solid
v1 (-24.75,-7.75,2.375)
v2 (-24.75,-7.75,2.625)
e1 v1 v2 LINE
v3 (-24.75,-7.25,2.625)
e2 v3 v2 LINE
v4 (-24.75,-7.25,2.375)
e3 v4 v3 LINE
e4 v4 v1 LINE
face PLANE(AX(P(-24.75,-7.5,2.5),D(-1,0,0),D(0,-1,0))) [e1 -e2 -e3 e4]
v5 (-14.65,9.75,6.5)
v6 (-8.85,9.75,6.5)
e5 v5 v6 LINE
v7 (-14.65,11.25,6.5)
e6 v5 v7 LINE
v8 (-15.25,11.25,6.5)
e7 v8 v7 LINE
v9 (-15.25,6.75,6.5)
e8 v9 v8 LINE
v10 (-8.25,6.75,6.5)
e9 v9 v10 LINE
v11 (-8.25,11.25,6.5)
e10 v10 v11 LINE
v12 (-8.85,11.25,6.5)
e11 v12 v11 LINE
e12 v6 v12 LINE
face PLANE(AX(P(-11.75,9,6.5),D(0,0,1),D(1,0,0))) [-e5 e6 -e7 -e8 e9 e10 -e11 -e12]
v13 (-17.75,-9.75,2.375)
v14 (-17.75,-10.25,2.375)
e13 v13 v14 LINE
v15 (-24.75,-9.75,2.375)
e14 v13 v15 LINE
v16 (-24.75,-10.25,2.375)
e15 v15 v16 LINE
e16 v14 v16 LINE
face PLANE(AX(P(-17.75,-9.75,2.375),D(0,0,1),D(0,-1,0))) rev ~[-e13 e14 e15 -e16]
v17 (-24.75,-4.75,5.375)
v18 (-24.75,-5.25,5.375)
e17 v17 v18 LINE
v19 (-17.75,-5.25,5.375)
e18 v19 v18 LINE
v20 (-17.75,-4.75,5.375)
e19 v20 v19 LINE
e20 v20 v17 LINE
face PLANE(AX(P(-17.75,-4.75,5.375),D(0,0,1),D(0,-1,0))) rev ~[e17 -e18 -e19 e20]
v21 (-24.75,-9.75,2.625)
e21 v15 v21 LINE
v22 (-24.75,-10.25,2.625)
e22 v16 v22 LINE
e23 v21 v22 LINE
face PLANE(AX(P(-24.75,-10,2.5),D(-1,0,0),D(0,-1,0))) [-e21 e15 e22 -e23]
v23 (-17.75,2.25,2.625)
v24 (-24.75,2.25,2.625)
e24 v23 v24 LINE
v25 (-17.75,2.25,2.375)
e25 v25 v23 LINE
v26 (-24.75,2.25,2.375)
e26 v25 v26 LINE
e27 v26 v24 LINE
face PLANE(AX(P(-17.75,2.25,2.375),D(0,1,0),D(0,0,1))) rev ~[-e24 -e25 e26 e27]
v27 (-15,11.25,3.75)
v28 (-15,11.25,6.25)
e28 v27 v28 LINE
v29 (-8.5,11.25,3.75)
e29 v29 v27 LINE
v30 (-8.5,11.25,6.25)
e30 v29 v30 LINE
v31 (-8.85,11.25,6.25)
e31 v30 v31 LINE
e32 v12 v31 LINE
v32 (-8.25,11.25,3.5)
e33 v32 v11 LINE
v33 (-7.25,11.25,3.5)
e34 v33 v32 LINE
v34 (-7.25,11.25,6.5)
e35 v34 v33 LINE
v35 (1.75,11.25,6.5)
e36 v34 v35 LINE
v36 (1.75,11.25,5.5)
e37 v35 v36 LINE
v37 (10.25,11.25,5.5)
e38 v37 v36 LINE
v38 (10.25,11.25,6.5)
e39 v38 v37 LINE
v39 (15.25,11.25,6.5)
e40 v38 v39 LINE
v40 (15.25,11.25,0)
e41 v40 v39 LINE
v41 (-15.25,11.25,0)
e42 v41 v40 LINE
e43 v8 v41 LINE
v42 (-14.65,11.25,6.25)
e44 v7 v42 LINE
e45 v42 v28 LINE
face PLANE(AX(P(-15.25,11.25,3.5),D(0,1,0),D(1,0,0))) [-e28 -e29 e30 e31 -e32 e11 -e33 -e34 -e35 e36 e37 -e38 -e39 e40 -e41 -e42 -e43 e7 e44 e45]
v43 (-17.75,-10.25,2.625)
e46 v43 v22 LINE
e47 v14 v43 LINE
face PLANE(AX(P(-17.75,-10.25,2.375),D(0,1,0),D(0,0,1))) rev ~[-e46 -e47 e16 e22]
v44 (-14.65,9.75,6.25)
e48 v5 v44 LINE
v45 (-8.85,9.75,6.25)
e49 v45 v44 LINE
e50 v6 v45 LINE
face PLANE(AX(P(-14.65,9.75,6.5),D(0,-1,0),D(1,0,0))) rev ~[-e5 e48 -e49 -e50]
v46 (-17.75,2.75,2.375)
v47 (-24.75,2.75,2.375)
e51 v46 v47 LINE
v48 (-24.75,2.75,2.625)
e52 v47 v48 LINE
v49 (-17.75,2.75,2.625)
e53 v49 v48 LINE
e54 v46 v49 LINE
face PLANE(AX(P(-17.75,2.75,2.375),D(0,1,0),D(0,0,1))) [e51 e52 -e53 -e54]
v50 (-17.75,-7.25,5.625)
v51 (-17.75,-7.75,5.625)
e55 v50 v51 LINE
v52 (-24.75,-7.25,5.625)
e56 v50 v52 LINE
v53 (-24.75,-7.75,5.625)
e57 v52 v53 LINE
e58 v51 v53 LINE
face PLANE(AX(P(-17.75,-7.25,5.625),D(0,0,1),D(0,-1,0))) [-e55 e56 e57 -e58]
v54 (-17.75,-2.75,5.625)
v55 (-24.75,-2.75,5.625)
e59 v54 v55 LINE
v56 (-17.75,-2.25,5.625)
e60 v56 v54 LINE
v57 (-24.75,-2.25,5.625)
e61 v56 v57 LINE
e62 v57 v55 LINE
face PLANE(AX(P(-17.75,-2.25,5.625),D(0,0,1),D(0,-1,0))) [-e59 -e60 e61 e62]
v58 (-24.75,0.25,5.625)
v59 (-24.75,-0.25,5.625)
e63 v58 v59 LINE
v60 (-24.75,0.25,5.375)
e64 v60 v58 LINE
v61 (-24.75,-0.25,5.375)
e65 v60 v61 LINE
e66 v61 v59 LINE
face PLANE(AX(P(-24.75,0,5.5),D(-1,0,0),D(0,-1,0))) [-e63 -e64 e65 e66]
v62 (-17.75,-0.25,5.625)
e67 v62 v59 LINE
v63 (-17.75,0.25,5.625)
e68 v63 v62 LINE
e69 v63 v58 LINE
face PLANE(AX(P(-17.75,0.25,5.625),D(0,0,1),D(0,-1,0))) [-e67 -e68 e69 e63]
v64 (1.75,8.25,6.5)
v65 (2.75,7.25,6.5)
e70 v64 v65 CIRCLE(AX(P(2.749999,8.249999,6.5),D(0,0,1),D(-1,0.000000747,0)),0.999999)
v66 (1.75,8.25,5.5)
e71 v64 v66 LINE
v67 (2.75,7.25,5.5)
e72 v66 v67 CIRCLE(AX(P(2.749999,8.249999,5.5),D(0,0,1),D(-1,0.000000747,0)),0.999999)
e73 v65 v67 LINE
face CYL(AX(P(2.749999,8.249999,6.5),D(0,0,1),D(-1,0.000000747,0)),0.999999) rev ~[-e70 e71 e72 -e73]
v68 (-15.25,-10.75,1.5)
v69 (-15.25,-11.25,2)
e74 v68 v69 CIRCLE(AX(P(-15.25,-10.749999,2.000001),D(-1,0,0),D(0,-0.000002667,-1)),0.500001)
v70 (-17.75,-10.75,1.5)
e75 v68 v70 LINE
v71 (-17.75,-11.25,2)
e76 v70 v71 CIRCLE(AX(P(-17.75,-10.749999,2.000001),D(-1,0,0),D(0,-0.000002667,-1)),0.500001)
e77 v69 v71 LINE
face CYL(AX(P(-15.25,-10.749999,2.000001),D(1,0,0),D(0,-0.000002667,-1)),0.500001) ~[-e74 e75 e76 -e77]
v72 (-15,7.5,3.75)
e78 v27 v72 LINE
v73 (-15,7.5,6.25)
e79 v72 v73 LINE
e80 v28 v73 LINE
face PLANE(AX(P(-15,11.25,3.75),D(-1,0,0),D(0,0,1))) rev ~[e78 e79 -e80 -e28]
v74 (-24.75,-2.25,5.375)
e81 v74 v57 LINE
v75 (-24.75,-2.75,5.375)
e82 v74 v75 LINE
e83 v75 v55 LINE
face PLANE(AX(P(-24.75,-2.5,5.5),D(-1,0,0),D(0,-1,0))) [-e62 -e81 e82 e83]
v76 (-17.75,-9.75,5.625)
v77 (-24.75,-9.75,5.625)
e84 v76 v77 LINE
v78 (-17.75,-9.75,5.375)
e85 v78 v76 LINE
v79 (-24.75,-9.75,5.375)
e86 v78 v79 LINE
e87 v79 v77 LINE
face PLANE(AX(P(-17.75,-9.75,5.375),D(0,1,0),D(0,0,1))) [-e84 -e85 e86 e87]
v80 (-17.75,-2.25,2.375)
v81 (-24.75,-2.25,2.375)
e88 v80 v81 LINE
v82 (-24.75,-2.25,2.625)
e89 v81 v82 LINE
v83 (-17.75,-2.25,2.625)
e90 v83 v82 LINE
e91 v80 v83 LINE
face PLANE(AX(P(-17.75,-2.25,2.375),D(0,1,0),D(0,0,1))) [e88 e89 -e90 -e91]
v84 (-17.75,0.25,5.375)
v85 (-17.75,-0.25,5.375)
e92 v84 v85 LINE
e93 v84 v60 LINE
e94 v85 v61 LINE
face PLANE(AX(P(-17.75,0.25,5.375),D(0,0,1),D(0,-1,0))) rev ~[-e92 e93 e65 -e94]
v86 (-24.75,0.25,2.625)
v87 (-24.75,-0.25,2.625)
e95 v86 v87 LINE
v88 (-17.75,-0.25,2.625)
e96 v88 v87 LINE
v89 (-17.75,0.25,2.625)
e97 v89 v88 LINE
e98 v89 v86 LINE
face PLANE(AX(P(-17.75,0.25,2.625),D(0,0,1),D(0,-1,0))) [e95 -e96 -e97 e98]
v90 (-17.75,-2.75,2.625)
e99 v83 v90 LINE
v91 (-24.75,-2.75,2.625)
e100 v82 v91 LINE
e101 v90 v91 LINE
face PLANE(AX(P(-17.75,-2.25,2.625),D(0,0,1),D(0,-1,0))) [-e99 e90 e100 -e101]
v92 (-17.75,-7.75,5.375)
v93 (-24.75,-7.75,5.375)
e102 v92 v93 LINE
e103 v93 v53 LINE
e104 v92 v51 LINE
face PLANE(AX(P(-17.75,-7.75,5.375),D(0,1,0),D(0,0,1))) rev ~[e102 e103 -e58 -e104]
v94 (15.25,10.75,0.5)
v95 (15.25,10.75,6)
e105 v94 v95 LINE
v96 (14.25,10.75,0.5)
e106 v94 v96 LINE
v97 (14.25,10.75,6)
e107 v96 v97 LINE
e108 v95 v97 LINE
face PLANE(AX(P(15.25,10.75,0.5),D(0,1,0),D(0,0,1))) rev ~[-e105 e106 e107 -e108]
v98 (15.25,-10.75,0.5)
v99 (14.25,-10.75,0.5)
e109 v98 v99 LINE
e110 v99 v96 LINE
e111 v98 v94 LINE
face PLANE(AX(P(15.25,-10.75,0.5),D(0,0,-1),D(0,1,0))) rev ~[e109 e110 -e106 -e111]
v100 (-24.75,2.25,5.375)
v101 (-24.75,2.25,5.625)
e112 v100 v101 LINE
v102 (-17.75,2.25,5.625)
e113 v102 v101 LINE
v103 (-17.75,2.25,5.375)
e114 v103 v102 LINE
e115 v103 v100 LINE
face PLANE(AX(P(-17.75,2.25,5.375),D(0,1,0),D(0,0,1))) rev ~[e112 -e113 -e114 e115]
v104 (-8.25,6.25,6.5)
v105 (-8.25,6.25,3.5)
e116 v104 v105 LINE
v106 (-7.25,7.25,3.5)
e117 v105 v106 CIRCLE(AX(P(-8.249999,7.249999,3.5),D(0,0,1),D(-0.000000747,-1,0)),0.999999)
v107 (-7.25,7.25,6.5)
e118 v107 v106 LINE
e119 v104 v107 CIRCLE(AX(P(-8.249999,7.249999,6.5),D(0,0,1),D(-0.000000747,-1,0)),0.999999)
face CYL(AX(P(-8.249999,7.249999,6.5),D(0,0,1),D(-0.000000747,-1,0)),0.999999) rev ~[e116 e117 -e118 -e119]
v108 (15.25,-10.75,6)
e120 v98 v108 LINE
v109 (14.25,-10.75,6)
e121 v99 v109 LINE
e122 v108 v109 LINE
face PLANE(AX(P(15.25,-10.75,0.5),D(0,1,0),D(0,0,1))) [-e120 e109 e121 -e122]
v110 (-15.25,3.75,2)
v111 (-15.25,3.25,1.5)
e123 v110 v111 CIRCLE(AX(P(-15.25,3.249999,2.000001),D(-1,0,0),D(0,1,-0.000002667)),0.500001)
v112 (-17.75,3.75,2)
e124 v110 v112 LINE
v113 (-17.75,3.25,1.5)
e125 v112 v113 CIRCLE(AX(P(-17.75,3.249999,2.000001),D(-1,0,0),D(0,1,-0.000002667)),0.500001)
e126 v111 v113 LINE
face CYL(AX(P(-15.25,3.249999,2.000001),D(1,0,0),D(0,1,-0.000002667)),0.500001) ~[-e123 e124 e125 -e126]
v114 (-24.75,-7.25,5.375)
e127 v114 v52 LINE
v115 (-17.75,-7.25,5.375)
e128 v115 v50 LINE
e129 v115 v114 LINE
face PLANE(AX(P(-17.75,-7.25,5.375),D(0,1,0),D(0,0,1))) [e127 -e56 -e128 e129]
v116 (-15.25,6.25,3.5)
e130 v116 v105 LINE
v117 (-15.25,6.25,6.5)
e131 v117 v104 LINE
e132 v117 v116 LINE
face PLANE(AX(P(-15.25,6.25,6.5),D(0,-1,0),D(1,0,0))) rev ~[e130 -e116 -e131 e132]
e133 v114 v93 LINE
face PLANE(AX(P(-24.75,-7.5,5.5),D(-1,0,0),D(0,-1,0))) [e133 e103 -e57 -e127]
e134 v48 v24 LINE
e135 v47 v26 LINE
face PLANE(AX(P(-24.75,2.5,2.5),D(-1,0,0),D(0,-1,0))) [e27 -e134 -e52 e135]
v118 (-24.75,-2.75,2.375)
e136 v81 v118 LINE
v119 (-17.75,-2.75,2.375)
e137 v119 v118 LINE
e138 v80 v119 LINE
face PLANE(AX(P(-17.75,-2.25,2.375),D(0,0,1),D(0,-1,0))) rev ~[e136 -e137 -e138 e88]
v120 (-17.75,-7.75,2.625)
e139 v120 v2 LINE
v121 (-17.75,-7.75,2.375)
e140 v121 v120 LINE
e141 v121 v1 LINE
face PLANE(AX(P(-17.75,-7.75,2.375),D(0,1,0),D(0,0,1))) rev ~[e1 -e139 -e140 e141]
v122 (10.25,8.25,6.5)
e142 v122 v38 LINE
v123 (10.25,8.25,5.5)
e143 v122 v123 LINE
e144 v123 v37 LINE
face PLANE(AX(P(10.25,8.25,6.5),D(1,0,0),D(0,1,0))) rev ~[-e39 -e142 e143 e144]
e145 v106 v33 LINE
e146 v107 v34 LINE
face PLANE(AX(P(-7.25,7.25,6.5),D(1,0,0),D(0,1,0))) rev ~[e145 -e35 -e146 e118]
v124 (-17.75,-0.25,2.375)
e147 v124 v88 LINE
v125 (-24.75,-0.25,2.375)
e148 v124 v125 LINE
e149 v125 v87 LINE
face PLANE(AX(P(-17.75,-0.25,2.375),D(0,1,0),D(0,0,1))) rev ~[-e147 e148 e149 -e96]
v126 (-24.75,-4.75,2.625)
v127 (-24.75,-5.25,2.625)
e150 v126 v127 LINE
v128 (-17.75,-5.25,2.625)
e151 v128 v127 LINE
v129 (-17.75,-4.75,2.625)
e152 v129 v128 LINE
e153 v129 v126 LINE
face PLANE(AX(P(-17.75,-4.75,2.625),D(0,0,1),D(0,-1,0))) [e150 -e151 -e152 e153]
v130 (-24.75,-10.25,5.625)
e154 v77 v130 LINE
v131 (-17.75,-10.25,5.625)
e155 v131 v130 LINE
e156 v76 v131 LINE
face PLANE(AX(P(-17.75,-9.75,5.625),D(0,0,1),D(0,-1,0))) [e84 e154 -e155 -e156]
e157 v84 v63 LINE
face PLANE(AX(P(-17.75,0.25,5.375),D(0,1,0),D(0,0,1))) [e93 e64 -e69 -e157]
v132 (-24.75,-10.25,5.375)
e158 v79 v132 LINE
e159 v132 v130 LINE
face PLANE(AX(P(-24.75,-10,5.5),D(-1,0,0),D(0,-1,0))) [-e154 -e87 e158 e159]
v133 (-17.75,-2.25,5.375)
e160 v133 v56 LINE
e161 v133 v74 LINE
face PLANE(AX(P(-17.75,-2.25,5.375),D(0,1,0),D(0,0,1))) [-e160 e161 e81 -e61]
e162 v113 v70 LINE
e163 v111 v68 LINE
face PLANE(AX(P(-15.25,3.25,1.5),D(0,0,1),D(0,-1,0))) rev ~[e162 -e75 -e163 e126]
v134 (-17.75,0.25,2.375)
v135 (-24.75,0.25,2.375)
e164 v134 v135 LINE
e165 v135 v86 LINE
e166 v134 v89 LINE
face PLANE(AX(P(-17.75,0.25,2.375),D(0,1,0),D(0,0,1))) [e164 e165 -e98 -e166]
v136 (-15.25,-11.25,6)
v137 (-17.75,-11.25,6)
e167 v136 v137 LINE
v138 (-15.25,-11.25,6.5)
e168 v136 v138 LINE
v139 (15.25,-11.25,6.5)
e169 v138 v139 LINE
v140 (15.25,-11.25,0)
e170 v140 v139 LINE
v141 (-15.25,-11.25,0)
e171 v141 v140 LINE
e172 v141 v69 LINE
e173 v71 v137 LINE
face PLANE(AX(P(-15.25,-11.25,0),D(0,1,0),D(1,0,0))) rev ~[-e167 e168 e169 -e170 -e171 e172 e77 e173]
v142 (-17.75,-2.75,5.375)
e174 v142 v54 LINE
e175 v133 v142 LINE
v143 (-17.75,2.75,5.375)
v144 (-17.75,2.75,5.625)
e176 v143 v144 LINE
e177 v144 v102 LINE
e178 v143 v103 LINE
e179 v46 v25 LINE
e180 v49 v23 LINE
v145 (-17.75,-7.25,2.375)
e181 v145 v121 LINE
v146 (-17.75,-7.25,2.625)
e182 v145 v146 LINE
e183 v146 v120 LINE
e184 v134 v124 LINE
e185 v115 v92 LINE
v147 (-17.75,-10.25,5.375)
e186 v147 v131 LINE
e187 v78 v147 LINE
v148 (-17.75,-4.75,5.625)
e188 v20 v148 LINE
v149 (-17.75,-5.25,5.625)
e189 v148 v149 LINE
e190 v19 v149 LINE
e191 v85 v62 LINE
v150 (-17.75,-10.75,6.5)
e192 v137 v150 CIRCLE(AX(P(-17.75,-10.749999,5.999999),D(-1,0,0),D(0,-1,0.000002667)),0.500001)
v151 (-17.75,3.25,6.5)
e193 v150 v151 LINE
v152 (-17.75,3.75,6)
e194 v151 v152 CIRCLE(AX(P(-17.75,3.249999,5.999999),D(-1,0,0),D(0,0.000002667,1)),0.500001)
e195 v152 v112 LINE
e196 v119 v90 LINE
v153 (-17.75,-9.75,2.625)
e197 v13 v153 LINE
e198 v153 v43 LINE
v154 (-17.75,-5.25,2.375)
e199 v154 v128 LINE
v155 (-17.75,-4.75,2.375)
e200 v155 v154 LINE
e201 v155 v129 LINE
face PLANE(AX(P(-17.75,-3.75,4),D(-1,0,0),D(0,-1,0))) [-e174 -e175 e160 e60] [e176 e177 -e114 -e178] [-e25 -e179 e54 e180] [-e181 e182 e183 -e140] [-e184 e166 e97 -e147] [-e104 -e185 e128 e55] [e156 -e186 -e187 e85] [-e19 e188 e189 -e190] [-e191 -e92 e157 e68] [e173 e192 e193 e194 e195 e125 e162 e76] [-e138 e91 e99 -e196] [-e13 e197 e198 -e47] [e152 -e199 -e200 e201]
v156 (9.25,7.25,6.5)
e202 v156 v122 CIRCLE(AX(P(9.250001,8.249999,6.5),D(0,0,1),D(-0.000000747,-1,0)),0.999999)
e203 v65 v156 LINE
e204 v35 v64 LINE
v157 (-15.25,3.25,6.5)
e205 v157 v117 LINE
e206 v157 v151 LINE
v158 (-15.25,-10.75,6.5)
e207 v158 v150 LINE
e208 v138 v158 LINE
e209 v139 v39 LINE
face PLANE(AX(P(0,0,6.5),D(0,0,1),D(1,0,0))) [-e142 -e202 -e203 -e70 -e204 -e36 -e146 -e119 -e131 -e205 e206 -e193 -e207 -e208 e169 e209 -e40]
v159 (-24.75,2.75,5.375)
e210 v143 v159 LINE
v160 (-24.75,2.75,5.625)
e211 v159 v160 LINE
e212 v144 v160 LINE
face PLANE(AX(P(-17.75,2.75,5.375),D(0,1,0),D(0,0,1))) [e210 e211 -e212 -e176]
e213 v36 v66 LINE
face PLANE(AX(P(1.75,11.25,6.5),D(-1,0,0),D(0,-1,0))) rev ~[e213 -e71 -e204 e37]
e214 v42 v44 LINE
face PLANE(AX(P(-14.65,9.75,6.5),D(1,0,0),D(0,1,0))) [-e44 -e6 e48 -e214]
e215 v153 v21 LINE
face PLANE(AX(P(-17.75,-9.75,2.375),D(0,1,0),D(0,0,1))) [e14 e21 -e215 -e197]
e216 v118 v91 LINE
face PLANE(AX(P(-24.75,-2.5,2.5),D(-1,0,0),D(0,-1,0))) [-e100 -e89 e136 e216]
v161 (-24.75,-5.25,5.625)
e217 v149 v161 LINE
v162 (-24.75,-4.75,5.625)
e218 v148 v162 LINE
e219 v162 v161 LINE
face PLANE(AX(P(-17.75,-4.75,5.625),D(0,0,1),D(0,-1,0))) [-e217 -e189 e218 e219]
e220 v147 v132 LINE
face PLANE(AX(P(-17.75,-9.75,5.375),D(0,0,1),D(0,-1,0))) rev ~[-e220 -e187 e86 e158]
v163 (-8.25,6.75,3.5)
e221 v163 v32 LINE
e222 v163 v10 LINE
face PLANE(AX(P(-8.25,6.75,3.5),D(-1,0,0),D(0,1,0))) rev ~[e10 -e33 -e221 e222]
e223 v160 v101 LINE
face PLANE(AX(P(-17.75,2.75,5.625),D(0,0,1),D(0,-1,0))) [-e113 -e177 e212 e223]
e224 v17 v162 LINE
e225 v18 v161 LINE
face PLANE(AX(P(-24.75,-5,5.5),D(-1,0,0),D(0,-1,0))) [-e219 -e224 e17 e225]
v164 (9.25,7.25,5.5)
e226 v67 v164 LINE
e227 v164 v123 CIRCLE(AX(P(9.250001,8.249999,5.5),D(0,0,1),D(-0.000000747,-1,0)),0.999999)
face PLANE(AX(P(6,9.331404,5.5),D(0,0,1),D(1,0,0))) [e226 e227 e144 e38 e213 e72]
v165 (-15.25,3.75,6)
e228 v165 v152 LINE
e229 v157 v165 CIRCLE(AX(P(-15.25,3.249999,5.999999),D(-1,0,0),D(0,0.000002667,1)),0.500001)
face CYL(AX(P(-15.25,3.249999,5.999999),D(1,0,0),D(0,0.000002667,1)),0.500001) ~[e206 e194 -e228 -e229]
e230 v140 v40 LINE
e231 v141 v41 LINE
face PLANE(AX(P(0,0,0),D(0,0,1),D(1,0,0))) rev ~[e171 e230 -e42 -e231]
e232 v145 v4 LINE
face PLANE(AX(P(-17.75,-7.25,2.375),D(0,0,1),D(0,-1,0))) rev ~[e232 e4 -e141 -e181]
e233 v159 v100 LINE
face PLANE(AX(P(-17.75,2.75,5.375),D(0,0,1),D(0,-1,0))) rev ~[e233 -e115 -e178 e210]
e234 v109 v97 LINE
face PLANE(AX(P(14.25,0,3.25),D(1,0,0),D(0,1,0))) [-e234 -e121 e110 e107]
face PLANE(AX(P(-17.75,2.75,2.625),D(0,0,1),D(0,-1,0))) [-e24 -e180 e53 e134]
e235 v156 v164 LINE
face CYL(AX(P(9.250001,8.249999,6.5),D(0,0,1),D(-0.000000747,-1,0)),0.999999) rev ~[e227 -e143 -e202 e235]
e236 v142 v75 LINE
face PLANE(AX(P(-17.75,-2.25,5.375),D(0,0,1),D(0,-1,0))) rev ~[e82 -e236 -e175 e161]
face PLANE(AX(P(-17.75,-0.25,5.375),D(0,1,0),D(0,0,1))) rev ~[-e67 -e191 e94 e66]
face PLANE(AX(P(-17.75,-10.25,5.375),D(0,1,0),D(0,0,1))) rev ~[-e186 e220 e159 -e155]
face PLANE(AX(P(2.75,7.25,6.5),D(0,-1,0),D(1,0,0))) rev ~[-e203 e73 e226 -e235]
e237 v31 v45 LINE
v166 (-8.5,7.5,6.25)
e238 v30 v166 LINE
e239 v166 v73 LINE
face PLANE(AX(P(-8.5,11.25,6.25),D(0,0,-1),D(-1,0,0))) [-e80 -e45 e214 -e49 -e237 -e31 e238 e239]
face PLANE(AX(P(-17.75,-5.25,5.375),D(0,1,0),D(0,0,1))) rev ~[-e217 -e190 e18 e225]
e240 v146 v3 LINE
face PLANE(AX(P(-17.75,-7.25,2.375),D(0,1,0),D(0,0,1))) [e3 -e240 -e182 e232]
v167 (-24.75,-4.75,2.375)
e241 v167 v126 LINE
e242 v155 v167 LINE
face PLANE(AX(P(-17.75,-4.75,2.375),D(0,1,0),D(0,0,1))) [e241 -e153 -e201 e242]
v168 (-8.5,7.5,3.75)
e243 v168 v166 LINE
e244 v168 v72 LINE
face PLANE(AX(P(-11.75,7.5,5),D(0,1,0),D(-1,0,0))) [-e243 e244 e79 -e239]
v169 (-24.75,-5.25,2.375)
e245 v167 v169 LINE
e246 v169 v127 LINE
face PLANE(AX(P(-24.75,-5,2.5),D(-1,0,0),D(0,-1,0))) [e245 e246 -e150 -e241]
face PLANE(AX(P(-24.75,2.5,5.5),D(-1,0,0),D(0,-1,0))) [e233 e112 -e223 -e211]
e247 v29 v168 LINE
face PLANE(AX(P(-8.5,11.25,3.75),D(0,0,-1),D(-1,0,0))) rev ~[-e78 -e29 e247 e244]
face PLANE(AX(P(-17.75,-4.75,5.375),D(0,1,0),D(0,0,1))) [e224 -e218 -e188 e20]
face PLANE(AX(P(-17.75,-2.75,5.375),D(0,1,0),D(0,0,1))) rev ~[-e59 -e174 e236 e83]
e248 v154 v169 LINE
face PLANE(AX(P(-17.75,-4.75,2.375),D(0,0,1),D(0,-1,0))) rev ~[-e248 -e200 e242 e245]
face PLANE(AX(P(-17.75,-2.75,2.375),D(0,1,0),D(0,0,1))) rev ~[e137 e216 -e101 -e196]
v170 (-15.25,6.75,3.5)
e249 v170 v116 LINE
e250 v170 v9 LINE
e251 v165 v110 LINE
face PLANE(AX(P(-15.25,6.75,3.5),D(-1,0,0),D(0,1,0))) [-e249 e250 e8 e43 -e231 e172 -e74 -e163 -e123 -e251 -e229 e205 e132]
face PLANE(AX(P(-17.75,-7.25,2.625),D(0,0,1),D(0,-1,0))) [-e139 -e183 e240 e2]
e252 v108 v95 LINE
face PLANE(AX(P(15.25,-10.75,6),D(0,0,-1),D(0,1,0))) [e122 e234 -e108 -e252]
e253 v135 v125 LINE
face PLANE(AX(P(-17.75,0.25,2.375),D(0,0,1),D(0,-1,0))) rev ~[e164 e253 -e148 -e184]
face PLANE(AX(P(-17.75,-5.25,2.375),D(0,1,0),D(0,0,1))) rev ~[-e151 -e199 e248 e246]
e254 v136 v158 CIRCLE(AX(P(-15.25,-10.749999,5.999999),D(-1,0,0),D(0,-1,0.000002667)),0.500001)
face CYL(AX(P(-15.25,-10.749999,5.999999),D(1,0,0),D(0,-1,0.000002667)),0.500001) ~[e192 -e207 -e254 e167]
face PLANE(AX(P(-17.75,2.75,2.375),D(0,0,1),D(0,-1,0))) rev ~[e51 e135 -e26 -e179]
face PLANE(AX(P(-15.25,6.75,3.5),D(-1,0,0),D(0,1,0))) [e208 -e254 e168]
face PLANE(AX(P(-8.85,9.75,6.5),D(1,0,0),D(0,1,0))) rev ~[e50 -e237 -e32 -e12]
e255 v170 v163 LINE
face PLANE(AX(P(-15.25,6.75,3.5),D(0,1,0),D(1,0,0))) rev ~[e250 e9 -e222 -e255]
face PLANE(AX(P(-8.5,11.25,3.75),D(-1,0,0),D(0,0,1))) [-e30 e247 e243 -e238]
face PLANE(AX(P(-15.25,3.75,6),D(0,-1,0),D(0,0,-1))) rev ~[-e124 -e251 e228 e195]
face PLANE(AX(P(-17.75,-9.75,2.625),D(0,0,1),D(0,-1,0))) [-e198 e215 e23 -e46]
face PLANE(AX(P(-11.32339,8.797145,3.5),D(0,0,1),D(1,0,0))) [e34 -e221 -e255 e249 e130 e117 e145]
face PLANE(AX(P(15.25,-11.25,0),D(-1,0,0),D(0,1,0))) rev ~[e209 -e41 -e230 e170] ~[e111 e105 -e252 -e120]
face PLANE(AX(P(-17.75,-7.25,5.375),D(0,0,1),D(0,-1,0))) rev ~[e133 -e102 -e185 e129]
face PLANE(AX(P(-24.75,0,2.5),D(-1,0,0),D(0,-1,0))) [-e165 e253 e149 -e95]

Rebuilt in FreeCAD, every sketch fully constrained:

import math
import FreeCAD as App
import Part
import Sketcher
from FreeCAD import Vector

doc = App.newDocument("Part")
params = doc.addObject("Spreadsheet::Sheet", "Params")
for row, (alias, value) in enumerate([
    ("sketch1_width", "30.5 mm"),
    ("sketch1_height", "22.5 mm"),
    ("pad1_length", "6.5 mm"),
    ("sketch2_radius", "0.999999 mm"),
    ("sketch2_width", "8 mm"),
    ("sketch2_height", "5 mm"),
    ("pocket1_length", "3 mm"),
    ("sketch3_width", "7 mm"),
    ("sketch3_height", "4.5 mm"),
    ("pad2_length", "3 mm"),
    ("sketch4_width", "6.5 mm"),
    ("sketch4_height", "2.5 mm"),
    ("pocket2_length", "3.75 mm"),
    ("sketch5_width", "5.8 mm"),
    ("sketch5_height", "1.5 mm"),
    ("pocket3_length", "0.5 mm"),
    ("sketch6_radius", "0.999999 mm"),
    ("sketch6_height", "3 mm"),
    ("sketch6_width", "8.5 mm"),
    ("pocket4_length", "1 mm"),
    ("sketch7_radius", "0.500001 mm"),
    ("sketch7_width", "14 mm"),
    ("sketch7_height", "4 mm"),
    ("pad3_length", "2.5 mm"),
    ("sketch8_width", "0.5 mm"),
    ("sketch8_height", "0.25 mm"),
    ("pad4_length", "7 mm"),
    ("sketch9_width", "21.5 mm"),
    ("sketch9_height", "5.5 mm"),
    ("pocket5_length", "1 mm"),
], start=1):
    params.set(f"A{row}", alias)
    params.set(f"B{row}", "=" + value)
    params.setAlias(f"B{row}", alias)

body = doc.addObject("PartDesign::Body", "Body")

sketch1 = doc.addObject("Sketcher::SketchObject", "Sketch")
body.addObject(sketch1)
sketch1.AttachmentSupport = (doc.XY_Plane, [""])
sketch1.MapMode = "FlatFace"
sketch1.addGeometry([
    Part.LineSegment(Vector(-15.25, 11.25, 0), Vector(-15.25, -11.25, 0)),
    Part.LineSegment(Vector(-15.25, -11.25, 0), Vector(15.25, -11.25, 0)),
    Part.LineSegment(Vector(15.25, -11.25, 0), Vector(15.25, 11.25, 0)),
    Part.LineSegment(Vector(15.25, 11.25, 0), Vector(-15.25, 11.25, 0)),
], False)
sketch1.addConstraint([
    Sketcher.Constraint("Coincident", 0, 2, 1, 1),
    Sketcher.Constraint("Coincident", 1, 2, 2, 1),
    Sketcher.Constraint("Coincident", 2, 2, 3, 1),
    Sketcher.Constraint("Coincident", 3, 2, 0, 1),
    Sketcher.Constraint("Vertical", 0),
    Sketcher.Constraint("Horizontal", 1),
    Sketcher.Constraint("Vertical", 2),
    Sketcher.Constraint("Horizontal", 3),
    Sketcher.Constraint("Symmetric", 0, 2, 2, 2, -1, 1),
    Sketcher.Constraint("DistanceX", 1, 1, 1, 2, 30.5),
    Sketcher.Constraint("DistanceY", 0, 2, 0, 1, 22.5),
])
sketch1.setExpression("Constraints[9]", "Params.sketch1_width")
sketch1.setExpression("Constraints[10]", "Params.sketch1_height")
pad1 = doc.addObject("PartDesign::Pad", "Pad")
body.addObject(pad1)
pad1.Profile = sketch1
pad1.setExpression("Length", "Params.pad1_length")

sketch2 = doc.addObject("Sketcher::SketchObject", "Sketch001")
body.addObject(sketch2)
sketch2.AttachmentSupport = (doc.XY_Plane, [""])
sketch2.MapMode = "FlatFace"
sketch2.AttachmentOffset = App.Placement(Vector(0, 0, 6.5), App.Rotation())
sketch2.addGeometry([
    Part.LineSegment(Vector(-7.25, 11.25, 0), Vector(-15.25, 11.25, 0)),
    Part.LineSegment(Vector(-15.25, 11.25, 0), Vector(-15.25, 6.25, 0)),
    Part.LineSegment(Vector(-15.25, 6.25, 0), Vector(-8.25, 6.25, 0)),
    Part.ArcOfCircle(Part.Circle(Vector(-8.249999, 7.249999, 0), Vector(0, 0, 1), 0.999999), math.radians(-90.000043), math.radians(0.000043)),
    Part.LineSegment(Vector(-7.25, 7.25, 0), Vector(-7.25, 11.25, 0)),
], False)
sketch2.addConstraint([
    Sketcher.Constraint("Coincident", 0, 2, 1, 1),
    Sketcher.Constraint("Coincident", 1, 2, 2, 1),
    Sketcher.Constraint("Tangent", 2, 2, 3, 1),
    Sketcher.Constraint("Tangent", 3, 2, 4, 1),
    Sketcher.Constraint("Coincident", 4, 2, 0, 1),
    Sketcher.Constraint("Horizontal", 0),
    Sketcher.Constraint("Vertical", 1),
    Sketcher.Constraint("Horizontal", 2),
    Sketcher.Constraint("Vertical", 4),
    Sketcher.Constraint("Radius", 3, 0.999999),
    Sketcher.Constraint("DistanceX", 0, 2, 0, 1, 8.0),
    Sketcher.Constraint("DistanceY", 1, 2, 1, 1, 5.0),
    Sketcher.Constraint("DistanceX", 3, 3, -1, 1, 8.249999),
    Sketcher.Constraint("DistanceY", -1, 1, 3, 3, 7.249999),
])
sketch2.setExpression("Constraints[9]", "Params.sketch2_radius")
sketch2.setExpression("Constraints[10]", "Params.sketch2_width")
sketch2.setExpression("Constraints[11]", "Params.sketch2_height")
pocket1 = doc.addObject("PartDesign::Pocket", "Pocket")
body.addObject(pocket1)
pocket1.Profile = sketch2
pocket1.setExpression("Length", "Params.pocket1_length")

sketch3 = doc.addObject("Sketcher::SketchObject", "Sketch002")
body.addObject(sketch3)
sketch3.AttachmentSupport = (doc.XY_Plane, [""])
sketch3.MapMode = "FlatFace"
sketch3.AttachmentOffset = App.Placement(Vector(0, 0, 3.5), App.Rotation())
sketch3.addGeometry([
    Part.LineSegment(Vector(-15.25, 11.25, 0), Vector(-15.25, 6.75, 0)),
    Part.LineSegment(Vector(-15.25, 6.75, 0), Vector(-8.25, 6.75, 0)),
    Part.LineSegment(Vector(-8.25, 6.75, 0), Vector(-8.25, 11.25, 0)),
    Part.LineSegment(Vector(-8.25, 11.25, 0), Vector(-15.25, 11.25, 0)),
], False)
sketch3.addConstraint([
    Sketcher.Constraint("Coincident", 0, 2, 1, 1),
    Sketcher.Constraint("Coincident", 1, 2, 2, 1),
    Sketcher.Constraint("Coincident", 2, 2, 3, 1),
    Sketcher.Constraint("Coincident", 3, 2, 0, 1),
    Sketcher.Constraint("Vertical", 0),
    Sketcher.Constraint("Horizontal", 1),
    Sketcher.Constraint("Vertical", 2),
    Sketcher.Constraint("Horizontal", 3),
    Sketcher.Constraint("DistanceX", 1, 1, 1, 2, 7.0),
    Sketcher.Constraint("DistanceY", 0, 2, 0, 1, 4.5),
    Sketcher.Constraint("DistanceX", 0, 2, -1, 1, 15.25),
    Sketcher.Constraint("DistanceY", -1, 1, 0, 2, 6.75),
])
sketch3.setExpression("Constraints[8]", "Params.sketch3_width")
sketch3.setExpression("Constraints[9]", "Params.sketch3_height")
pad2 = doc.addObject("PartDesign::Pad", "Pad001")
body.addObject(pad2)
pad2.Profile = sketch3
pad2.setExpression("Length", "Params.pad2_length")

sketch4 = doc.addObject("Sketcher::SketchObject", "Sketch003")
body.addObject(sketch4)
sketch4.AttachmentSupport = (doc.XZ_Plane, [""])
sketch4.MapMode = "FlatFace"
sketch4.AttachmentOffset = App.Placement(Vector(0, 0, -11.25), App.Rotation())
sketch4.addGeometry([
    Part.LineSegment(Vector(-8.5, 6.25, 0), Vector(-8.5, 3.75, 0)),
    Part.LineSegment(Vector(-8.5, 3.75, 0), Vector(-15, 3.75, 0)),
    Part.LineSegment(Vector(-15, 3.75, 0), Vector(-15, 6.25, 0)),
    Part.LineSegment(Vector(-15, 6.25, 0), Vector(-8.5, 6.25, 0)),
], False)
sketch4.addConstraint([
    Sketcher.Constraint("Coincident", 0, 2, 1, 1),
    Sketcher.Constraint("Coincident", 1, 2, 2, 1),
    Sketcher.Constraint("Coincident", 2, 2, 3, 1),
    Sketcher.Constraint("Coincident", 3, 2, 0, 1),
    Sketcher.Constraint("Vertical", 0),
    Sketcher.Constraint("Horizontal", 1),
    Sketcher.Constraint("Vertical", 2),
    Sketcher.Constraint("Horizontal", 3),
    Sketcher.Constraint("DistanceX", 1, 2, 1, 1, 6.5),
    Sketcher.Constraint("DistanceY", 0, 2, 0, 1, 2.5),
    Sketcher.Constraint("DistanceX", 1, 2, -1, 1, 15.0),
    Sketcher.Constraint("DistanceY", -1, 1, 0, 2, 3.75),
])
sketch4.setExpression("Constraints[8]", "Params.sketch4_width")
sketch4.setExpression("Constraints[9]", "Params.sketch4_height")
pocket2 = doc.addObject("PartDesign::Pocket", "Pocket001")
body.addObject(pocket2)
pocket2.Profile = sketch4
pocket2.setExpression("Length", "Params.pocket2_length")
pocket2.Reversed = True

sketch5 = doc.addObject("Sketcher::SketchObject", "Sketch004")
body.addObject(sketch5)
sketch5.AttachmentSupport = (doc.XY_Plane, [""])
sketch5.MapMode = "FlatFace"
sketch5.AttachmentOffset = App.Placement(Vector(0, 0, 6.5), App.Rotation())
sketch5.addGeometry([
    Part.LineSegment(Vector(-14.65, 11.25, 0), Vector(-14.65, 9.75, 0)),
    Part.LineSegment(Vector(-14.65, 9.75, 0), Vector(-8.85, 9.75, 0)),
    Part.LineSegment(Vector(-8.85, 9.75, 0), Vector(-8.85, 11.25, 0)),
    Part.LineSegment(Vector(-8.85, 11.25, 0), Vector(-14.65, 11.25, 0)),
], False)
sketch5.addConstraint([
    Sketcher.Constraint("Coincident", 0, 2, 1, 1),
    Sketcher.Constraint("Coincident", 1, 2, 2, 1),
    Sketcher.Constraint("Coincident", 2, 2, 3, 1),
    Sketcher.Constraint("Coincident", 3, 2, 0, 1),
    Sketcher.Constraint("Vertical", 0),
    Sketcher.Constraint("Horizontal", 1),
    Sketcher.Constraint("Vertical", 2),
    Sketcher.Constraint("Horizontal", 3),
    Sketcher.Constraint("DistanceX", 1, 1, 1, 2, 5.8),
    Sketcher.Constraint("DistanceY", 0, 2, 0, 1, 1.5),
    Sketcher.Constraint("DistanceX", 0, 2, -1, 1, 14.65),
    Sketcher.Constraint("DistanceY", -1, 1, 0, 2, 9.75),
])
sketch5.setExpression("Constraints[8]", "Params.sketch5_width")
sketch5.setExpression("Constraints[9]", "Params.sketch5_height")
pocket3 = doc.addObject("PartDesign::Pocket", "Pocket002")
body.addObject(pocket3)
pocket3.Profile = sketch5
pocket3.setExpression("Length", "Params.pocket3_length")

sketch6 = doc.addObject("Sketcher::SketchObject", "Sketch005")
body.addObject(sketch6)
sketch6.AttachmentSupport = (doc.XY_Plane, [""])
sketch6.MapMode = "FlatFace"
sketch6.AttachmentOffset = App.Placement(Vector(0, 0, 6.5), App.Rotation())
sketch6.addGeometry([
    Part.LineSegment(Vector(10.25, 11.25, 0), Vector(1.75, 11.25, 0)),
    Part.LineSegment(Vector(1.75, 11.25, 0), Vector(1.75, 8.25, 0)),
    Part.ArcOfCircle(Part.Circle(Vector(2.749999, 8.249999, 0), Vector(0, 0, 1), 0.999999), math.radians(179.999957), math.radians(270.000043)),
    Part.LineSegment(Vector(2.75, 7.25, 0), Vector(9.25, 7.25, 0)),
    Part.ArcOfCircle(Part.Circle(Vector(9.250001, 8.249999, 0), Vector(0, 0, 1), 0.999999), math.radians(-90.000043), math.radians(0.000043)),
    Part.LineSegment(Vector(10.25, 8.25, 0), Vector(10.25, 11.25, 0)),
], False)
sketch6.addConstraint([
    Sketcher.Constraint("Coincident", 0, 2, 1, 1),
    Sketcher.Constraint("Tangent", 1, 2, 2, 1),
    Sketcher.Constraint("Tangent", 2, 2, 3, 1),
    Sketcher.Constraint("Tangent", 3, 2, 4, 1),
    Sketcher.Constraint("Tangent", 4, 2, 5, 1),
    Sketcher.Constraint("Coincident", 5, 2, 0, 1),
    Sketcher.Constraint("Horizontal", 0),
    Sketcher.Constraint("Vertical", 1),
    Sketcher.Constraint("Horizontal", 3),
    Sketcher.Constraint("Vertical", 5),
    Sketcher.Constraint("Equal", 2, 4),
    Sketcher.Constraint("Radius", 2, 0.999999),
    Sketcher.Constraint("DistanceY", 1, 2, 1, 1, 3.0),
    Sketcher.Constraint("DistanceX", 0, 2, 0, 1, 8.5),
    Sketcher.Constraint("DistanceX", -1, 1, 2, 3, 2.749999),
    Sketcher.Constraint("DistanceY", -1, 1, 2, 3, 8.249999),
])
sketch6.setExpression("Constraints[11]", "Params.sketch6_radius")
sketch6.setExpression("Constraints[12]", "Params.sketch6_height")
sketch6.setExpression("Constraints[13]", "Params.sketch6_width")
pocket4 = doc.addObject("PartDesign::Pocket", "Pocket003")
body.addObject(pocket4)
pocket4.Profile = sketch6
pocket4.setExpression("Length", "Params.pocket4_length")

sketch7 = doc.addObject("Sketcher::SketchObject", "Sketch006")
body.addObject(sketch7)
sketch7.AttachmentSupport = (doc.YZ_Plane, [""])
sketch7.MapMode = "FlatFace"
sketch7.AttachmentOffset = App.Placement(Vector(0, 0, -15.25), App.Rotation())
sketch7.addGeometry([
    Part.LineSegment(Vector(-10.75, 6.5, 0), Vector(3.25, 6.5, 0)),
    Part.ArcOfCircle(Part.Circle(Vector(3.249999, 5.999999, 0), Vector(0, 0, 1), 0.500001), math.radians(0.000153), math.radians(89.999847)),
    Part.LineSegment(Vector(3.75, 6, 0), Vector(3.75, 2, 0)),
    Part.ArcOfCircle(Part.Circle(Vector(3.249999, 2.000001, 0), Vector(0, 0, 1), 0.500001), math.radians(-89.999847), math.radians(-0.000153)),
    Part.LineSegment(Vector(3.25, 1.5, 0), Vector(-10.75, 1.5, 0)),
    Part.ArcOfCircle(Part.Circle(Vector(-10.749999, 2.000001, 0), Vector(0, 0, 1), 0.500001), math.radians(-179.999847), math.radians(-90.000153)),
    Part.LineSegment(Vector(-11.25, 2, 0), Vector(-11.25, 6, 0)),
    Part.ArcOfCircle(Part.Circle(Vector(-10.749999, 5.999999, 0), Vector(0, 0, 1), 0.500001), math.radians(90.000153), math.radians(179.999847)),
], False)
sketch7.addConstraint([
    Sketcher.Constraint("Coincident", 0, 2, 1, 2),
    Sketcher.Constraint("Coincident", 1, 1, 2, 1),
    Sketcher.Constraint("Coincident", 2, 2, 3, 2),
    Sketcher.Constraint("Coincident", 3, 1, 4, 1),
    Sketcher.Constraint("Coincident", 4, 2, 5, 2),
    Sketcher.Constraint("Coincident", 5, 1, 6, 1),
    Sketcher.Constraint("Coincident", 6, 2, 7, 2),
    Sketcher.Constraint("Coincident", 7, 1, 0, 1),
    Sketcher.Constraint("Horizontal", 0),
    Sketcher.Constraint("Vertical", 2),
    Sketcher.Constraint("Horizontal", 4),
    Sketcher.Constraint("Vertical", 6),
    Sketcher.Constraint("Equal", 1, 3),
    Sketcher.Constraint("Equal", 3, 5),
    Sketcher.Constraint("Equal", 5, 7),
    Sketcher.Constraint("Horizontal", 7, 3, 1, 1),
    Sketcher.Constraint("Horizontal", 5, 3, 2, 2),
    Sketcher.Constraint("Horizontal", 2, 2, 5, 1),
    Sketcher.Constraint("Horizontal", 1, 1, 6, 2),
    Sketcher.Constraint("Vertical", 3, 3, 0, 2),
    Sketcher.Constraint("Vertical", 0, 2, 3, 1),
    Sketcher.Constraint("Vertical", 7, 3, 4, 2),
    Sketcher.Constraint("Vertical", 4, 2, 7, 1),
    Sketcher.Constraint("Radius", 1, 0.500001),
    Sketcher.Constraint("DistanceX", 0, 1, 0, 2, 14.0),
    Sketcher.Constraint("DistanceY", 2, 2, 2, 1, 4.0),
    Sketcher.Constraint("DistanceY", -1, 1, 1, 3, 5.999999),
    Sketcher.Constraint("DistanceX", -1, 1, 1, 3, 3.249999),
])
sketch7.setExpression("Constraints[23]", "Params.sketch7_radius")
sketch7.setExpression("Constraints[24]", "Params.sketch7_width")
sketch7.setExpression("Constraints[25]", "Params.sketch7_height")
pad3 = doc.addObject("PartDesign::Pad", "Pad002")
body.addObject(pad3)
pad3.Profile = sketch7
pad3.setExpression("Length", "Params.pad3_length")
pad3.Reversed = True

sketch8 = doc.addObject("Sketcher::SketchObject", "Sketch007")
body.addObject(sketch8)
sketch8.AttachmentSupport = (doc.YZ_Plane, [""])
sketch8.MapMode = "FlatFace"
sketch8.AttachmentOffset = App.Placement(Vector(0, 0, -17.75), App.Rotation())
sketch8.addGeometry([
    Part.LineSegment(Vector(2.75, 5.625, 0), Vector(2.75, 5.375, 0)),
    Part.LineSegment(Vector(2.75, 5.375, 0), Vector(2.25, 5.375, 0)),
    Part.LineSegment(Vector(2.25, 5.375, 0), Vector(2.25, 5.625, 0)),
    Part.LineSegment(Vector(2.25, 5.625, 0), Vector(2.75, 5.625, 0)),
    Part.LineSegment(Vector(2.75, 2.625, 0), Vector(2.75, 2.375, 0)),
    Part.LineSegment(Vector(2.75, 2.375, 0), Vector(2.25, 2.375, 0)),
    Part.LineSegment(Vector(2.25, 2.375, 0), Vector(2.25, 2.625, 0)),
    Part.LineSegment(Vector(2.25, 2.625, 0), Vector(2.75, 2.625, 0)),
    Part.LineSegment(Vector(0.25, 5.625, 0), Vector(0.25, 5.375, 0)),
    Part.LineSegment(Vector(0.25, 5.375, 0), Vector(-0.25, 5.375, 0)),
    Part.LineSegment(Vector(-0.25, 5.375, 0), Vector(-0.25, 5.625, 0)),
    Part.LineSegment(Vector(-0.25, 5.625, 0), Vector(0.25, 5.625, 0)),
    Part.LineSegment(Vector(0.25, 2.625, 0), Vector(0.25, 2.375, 0)),
    Part.LineSegment(Vector(0.25, 2.375, 0), Vector(-0.25, 2.375, 0)),
    Part.LineSegment(Vector(-0.25, 2.375, 0), Vector(-0.25, 2.625, 0)),
    Part.LineSegment(Vector(-0.25, 2.625, 0), Vector(0.25, 2.625, 0)),
    Part.LineSegment(Vector(-2.25, 5.625, 0), Vector(-2.25, 5.375, 0)),
    Part.LineSegment(Vector(-2.25, 5.375, 0), Vector(-2.75, 5.375, 0)),
    Part.LineSegment(Vector(-2.75, 5.375, 0), Vector(-2.75, 5.625, 0)),
    Part.LineSegment(Vector(-2.75, 5.625, 0), Vector(-2.25, 5.625, 0)),
    Part.LineSegment(Vector(-2.25, 2.625, 0), Vector(-2.25, 2.375, 0)),
    Part.LineSegment(Vector(-2.25, 2.375, 0), Vector(-2.75, 2.375, 0)),
    Part.LineSegment(Vector(-2.75, 2.375, 0), Vector(-2.75, 2.625, 0)),
    Part.LineSegment(Vector(-2.75, 2.625, 0), Vector(-2.25, 2.625, 0)),
    Part.LineSegment(Vector(-4.75, 5.625, 0), Vector(-4.75, 5.375, 0)),
    Part.LineSegment(Vector(-4.75, 5.375, 0), Vector(-5.25, 5.375, 0)),
    Part.LineSegment(Vector(-5.25, 5.375, 0), Vector(-5.25, 5.625, 0)),
    Part.LineSegment(Vector(-5.25, 5.625, 0), Vector(-4.75, 5.625, 0)),
    Part.LineSegment(Vector(-4.75, 2.625, 0), Vector(-4.75, 2.375, 0)),
    Part.LineSegment(Vector(-4.75, 2.375, 0), Vector(-5.25, 2.375, 0)),
    Part.LineSegment(Vector(-5.25, 2.375, 0), Vector(-5.25, 2.625, 0)),
    Part.LineSegment(Vector(-5.25, 2.625, 0), Vector(-4.75, 2.625, 0)),
    Part.LineSegment(Vector(-7.25, 5.625, 0), Vector(-7.25, 5.375, 0)),
    Part.LineSegment(Vector(-7.25, 5.375, 0), Vector(-7.75, 5.375, 0)),
    Part.LineSegment(Vector(-7.75, 5.375, 0), Vector(-7.75, 5.625, 0)),
    Part.LineSegment(Vector(-7.75, 5.625, 0), Vector(-7.25, 5.625, 0)),
    Part.LineSegment(Vector(-7.25, 2.625, 0), Vector(-7.25, 2.375, 0)),
    Part.LineSegment(Vector(-7.25, 2.375, 0), Vector(-7.75, 2.375, 0)),
    Part.LineSegment(Vector(-7.75, 2.375, 0), Vector(-7.75, 2.625, 0)),
    Part.LineSegment(Vector(-7.75, 2.625, 0), Vector(-7.25, 2.625, 0)),
    Part.LineSegment(Vector(-9.75, 5.625, 0), Vector(-9.75, 5.375, 0)),
    Part.LineSegment(Vector(-9.75, 5.375, 0), Vector(-10.25, 5.375, 0)),
    Part.LineSegment(Vector(-10.25, 5.375, 0), Vector(-10.25, 5.625, 0)),
    Part.LineSegment(Vector(-10.25, 5.625, 0), Vector(-9.75, 5.625, 0)),
    Part.LineSegment(Vector(-9.75, 2.625, 0), Vector(-9.75, 2.375, 0)),
    Part.LineSegment(Vector(-9.75, 2.375, 0), Vector(-10.25, 2.375, 0)),
    Part.LineSegment(Vector(-10.25, 2.375, 0), Vector(-10.25, 2.625, 0)),
    Part.LineSegment(Vector(-10.25, 2.625, 0), Vector(-9.75, 2.625, 0)),
], False)
sketch8.addConstraint([
    Sketcher.Constraint("Coincident", 0, 2, 1, 1),
    Sketcher.Constraint("Coincident", 1, 2, 2, 1),
    Sketcher.Constraint("Coincident", 2, 2, 3, 1),
    Sketcher.Constraint("Coincident", 3, 2, 0, 1),
    Sketcher.Constraint("Coincident", 4, 2, 5, 1),
    Sketcher.Constraint("Coincident", 5, 2, 6, 1),
    Sketcher.Constraint("Coincident", 6, 2, 7, 1),
    Sketcher.Constraint("Coincident", 7, 2, 4, 1),
    Sketcher.Constraint("Coincident", 8, 2, 9, 1),
    Sketcher.Constraint("Coincident", 9, 2, 10, 1),
    Sketcher.Constraint("Coincident", 10, 2, 11, 1),
    Sketcher.Constraint("Coincident", 11, 2, 8, 1),
    Sketcher.Constraint("Coincident", 12, 2, 13, 1),
    Sketcher.Constraint("Coincident", 13, 2, 14, 1),
    Sketcher.Constraint("Coincident", 14, 2, 15, 1),
    Sketcher.Constraint("Coincident", 15, 2, 12, 1),
    Sketcher.Constraint("Coincident", 16, 2, 17, 1),
    Sketcher.Constraint("Coincident", 17, 2, 18, 1),
    Sketcher.Constraint("Coincident", 18, 2, 19, 1),
    Sketcher.Constraint("Coincident", 19, 2, 16, 1),
    Sketcher.Constraint("Coincident", 20, 2, 21, 1),
    Sketcher.Constraint("Coincident", 21, 2, 22, 1),
    Sketcher.Constraint("Coincident", 22, 2, 23, 1),
    Sketcher.Constraint("Coincident", 23, 2, 20, 1),
    Sketcher.Constraint("Coincident", 24, 2, 25, 1),
    Sketcher.Constraint("Coincident", 25, 2, 26, 1),
    Sketcher.Constraint("Coincident", 26, 2, 27, 1),
    Sketcher.Constraint("Coincident", 27, 2, 24, 1),
    Sketcher.Constraint("Coincident", 28, 2, 29, 1),
    Sketcher.Constraint("Coincident", 29, 2, 30, 1),
    Sketcher.Constraint("Coincident", 30, 2, 31, 1),
    Sketcher.Constraint("Coincident", 31, 2, 28, 1),
    Sketcher.Constraint("Coincident", 32, 2, 33, 1),
    Sketcher.Constraint("Coincident", 33, 2, 34, 1),
    Sketcher.Constraint("Coincident", 34, 2, 35, 1),
    Sketcher.Constraint("Coincident", 35, 2, 32, 1),
    Sketcher.Constraint("Coincident", 36, 2, 37, 1),
    Sketcher.Constraint("Coincident", 37, 2, 38, 1),
    Sketcher.Constraint("Coincident", 38, 2, 39, 1),
    Sketcher.Constraint("Coincident", 39, 2, 36, 1),
    Sketcher.Constraint("Coincident", 40, 2, 41, 1),
    Sketcher.Constraint("Coincident", 41, 2, 42, 1),
    Sketcher.Constraint("Coincident", 42, 2, 43, 1),
    Sketcher.Constraint("Coincident", 43, 2, 40, 1),
    Sketcher.Constraint("Coincident", 44, 2, 45, 1),
    Sketcher.Constraint("Coincident", 45, 2, 46, 1),
    Sketcher.Constraint("Coincident", 46, 2, 47, 1),
    Sketcher.Constraint("Coincident", 47, 2, 44, 1),
    Sketcher.Constraint("Vertical", 0),
    Sketcher.Constraint("Horizontal", 1),
    Sketcher.Constraint("Vertical", 2),
    Sketcher.Constraint("Horizontal", 3),
    Sketcher.Constraint("Vertical", 4),
    Sketcher.Constraint("Horizontal", 5),
    Sketcher.Constraint("Vertical", 6),
    Sketcher.Constraint("Horizontal", 7),
    Sketcher.Constraint("Vertical", 8),
    Sketcher.Constraint("Horizontal", 9),
    Sketcher.Constraint("Vertical", 10),
    Sketcher.Constraint("Horizontal", 11),
    Sketcher.Constraint("Vertical", 12),
    Sketcher.Constraint("Horizontal", 13),
    Sketcher.Constraint("Vertical", 14),
    Sketcher.Constraint("Horizontal", 15),
    Sketcher.Constraint("Vertical", 16),
    Sketcher.Constraint("Horizontal", 17),
    Sketcher.Constraint("Vertical", 18),
    Sketcher.Constraint("Horizontal", 19),
    Sketcher.Constraint("Vertical", 20),
    Sketcher.Constraint("Horizontal", 21),
    Sketcher.Constraint("Vertical", 22),
    Sketcher.Constraint("Horizontal", 23),
    Sketcher.Constraint("Vertical", 24),
    Sketcher.Constraint("Horizontal", 25),
    Sketcher.Constraint("Vertical", 26),
    Sketcher.Constraint("Horizontal", 27),
    Sketcher.Constraint("Vertical", 28),
    Sketcher.Constraint("Horizontal", 29),
    Sketcher.Constraint("Vertical", 30),
    Sketcher.Constraint("Horizontal", 31),
    Sketcher.Constraint("Vertical", 32),
    Sketcher.Constraint("Horizontal", 33),
    Sketcher.Constraint("Vertical", 34),
    Sketcher.Constraint("Horizontal", 35),
    Sketcher.Constraint("Vertical", 36),
    Sketcher.Constraint("Horizontal", 37),
    Sketcher.Constraint("Vertical", 38),
    Sketcher.Constraint("Horizontal", 39),
    Sketcher.Constraint("Vertical", 40),
    Sketcher.Constraint("Horizontal", 41),
    Sketcher.Constraint("Vertical", 42),
    Sketcher.Constraint("Horizontal", 43),
    Sketcher.Constraint("Vertical", 44),
    Sketcher.Constraint("Horizontal", 45),
    Sketcher.Constraint("Vertical", 46),
    Sketcher.Constraint("Horizontal", 47),
    Sketcher.Constraint("Symmetric", 1, 2, 16, 2, -2),
    Sketcher.Constraint("Symmetric", 3, 2, 18, 2, -2),
    Sketcher.Constraint("Symmetric", 5, 2, 20, 2, -2),
    Sketcher.Constraint("Symmetric", 7, 2, 22, 2, -2),
    Sketcher.Constraint("Horizontal", 1, 2, 8, 2),
    Sketcher.Constraint("Horizontal", 3, 2, 10, 2),
    Sketcher.Constraint("Horizontal", 5, 2, 12, 2),
    Sketcher.Constraint("Horizontal", 7, 2, 14, 2),
    Sketcher.Constraint("Horizontal", 17, 2, 24, 2),
    Sketcher.Constraint("Horizontal", 19, 2, 26, 2),
    Sketcher.Constraint("Horizontal", 21, 2, 28, 2),
    Sketcher.Constraint("Horizontal", 23, 2, 30, 2),
    Sketcher.Constraint("Horizontal", 25, 2, 32, 2),
    Sketcher.Constraint("Horizontal", 27, 2, 34, 2),
    Sketcher.Constraint("Horizontal", 29, 2, 36, 2),
    Sketcher.Constraint("Horizontal", 31, 2, 38, 2),
    Sketcher.Constraint("Horizontal", 33, 2, 40, 2),
    Sketcher.Constraint("Horizontal", 35, 2, 42, 2),
    Sketcher.Constraint("Horizontal", 37, 2, 44, 2),
    Sketcher.Constraint("Horizontal", 39, 2, 46, 2),
    Sketcher.Constraint("Vertical", 3, 2, 4, 2),
    Sketcher.Constraint("Vertical", 2, 2, 5, 2),
    Sketcher.Constraint("Vertical", 11, 2, 12, 2),
    Sketcher.Constraint("Vertical", 10, 2, 13, 2),
    Sketcher.Constraint("Vertical", 27, 2, 28, 2),
    Sketcher.Constraint("Vertical", 26, 2, 29, 2),
    Sketcher.Constraint("Vertical", 35, 2, 36, 2),
    Sketcher.Constraint("Vertical", 34, 2, 37, 2),
    Sketcher.Constraint("Vertical", 43, 2, 44, 2),
    Sketcher.Constraint("Vertical", 42, 2, 45, 2),
    Sketcher.Constraint("Equal", 7, 9),
    Sketcher.Constraint("Equal", 23, 25),
    Sketcher.Constraint("Equal", 31, 33),
    Sketcher.Constraint("Equal", 39, 41),
    Sketcher.Constraint("Equal", 2, 4),
    Sketcher.Constraint("DistanceX", 1, 2, 1, 1, 0.5),
    Sketcher.Constraint("DistanceY", 4, 2, 0, 2, 3.0),
    Sketcher.Constraint("DistanceX", 8, 2, 1, 2, 2.0),
    Sketcher.Constraint("DistanceX", 16, 2, 9, 2, 2.0),
    Sketcher.Constraint("DistanceX", 24, 2, 17, 2, 2.0),
    Sketcher.Constraint("DistanceX", 32, 2, 25, 2, 2.0),
    Sketcher.Constraint("DistanceX", 40, 2, 33, 2, 2.0),
    Sketcher.Constraint("DistanceY", 0, 2, 0, 1, 0.25),
    Sketcher.Constraint("DistanceY", -1, 1, 0, 2, 5.375),
])
sketch8.setExpression("Constraints[131]", "Params.sketch8_width")
sketch8.setExpression("Constraints[138]", "Params.sketch8_height")
pad4 = doc.addObject("PartDesign::Pad", "Pad003")
body.addObject(pad4)
pad4.Profile = sketch8
pad4.setExpression("Length", "Params.pad4_length")
pad4.Reversed = True

sketch9 = doc.addObject("Sketcher::SketchObject", "Sketch008")
body.addObject(sketch9)
sketch9.AttachmentSupport = (doc.YZ_Plane, [""])
sketch9.MapMode = "FlatFace"
sketch9.AttachmentOffset = App.Placement(Vector(0, 0, 15.25), App.Rotation())
sketch9.addGeometry([
    Part.LineSegment(Vector(-10.75, 6, 0), Vector(-10.75, 0.5, 0)),
    Part.LineSegment(Vector(-10.75, 0.5, 0), Vector(10.75, 0.5, 0)),
    Part.LineSegment(Vector(10.75, 0.5, 0), Vector(10.75, 6, 0)),
    Part.LineSegment(Vector(10.75, 6, 0), Vector(-10.75, 6, 0)),
], False)
sketch9.addConstraint([
    Sketcher.Constraint("Coincident", 0, 2, 1, 1),
    Sketcher.Constraint("Coincident", 1, 2, 2, 1),
    Sketcher.Constraint("Coincident", 2, 2, 3, 1),
    Sketcher.Constraint("Coincident", 3, 2, 0, 1),
    Sketcher.Constraint("Vertical", 0),
    Sketcher.Constraint("Horizontal", 1),
    Sketcher.Constraint("Vertical", 2),
    Sketcher.Constraint("Horizontal", 3),
    Sketcher.Constraint("DistanceX", 1, 1, 1, 2, 21.5),
    Sketcher.Constraint("DistanceY", 0, 2, 0, 1, 5.5),
    Sketcher.Constraint("DistanceY", -1, 1, 2, 2, 6.0),
    Sketcher.Constraint("DistanceX", 0, 2, -1, 1, 10.75),
])
sketch9.setExpression("Constraints[8]", "Params.sketch9_width")
sketch9.setExpression("Constraints[9]", "Params.sketch9_height")
pocket5 = doc.addObject("PartDesign::Pocket", "Pocket004")
body.addObject(pocket5)
pocket5.Profile = sketch9
pocket5.setExpression("Length", "Params.pocket5_length")

doc.recompute()
